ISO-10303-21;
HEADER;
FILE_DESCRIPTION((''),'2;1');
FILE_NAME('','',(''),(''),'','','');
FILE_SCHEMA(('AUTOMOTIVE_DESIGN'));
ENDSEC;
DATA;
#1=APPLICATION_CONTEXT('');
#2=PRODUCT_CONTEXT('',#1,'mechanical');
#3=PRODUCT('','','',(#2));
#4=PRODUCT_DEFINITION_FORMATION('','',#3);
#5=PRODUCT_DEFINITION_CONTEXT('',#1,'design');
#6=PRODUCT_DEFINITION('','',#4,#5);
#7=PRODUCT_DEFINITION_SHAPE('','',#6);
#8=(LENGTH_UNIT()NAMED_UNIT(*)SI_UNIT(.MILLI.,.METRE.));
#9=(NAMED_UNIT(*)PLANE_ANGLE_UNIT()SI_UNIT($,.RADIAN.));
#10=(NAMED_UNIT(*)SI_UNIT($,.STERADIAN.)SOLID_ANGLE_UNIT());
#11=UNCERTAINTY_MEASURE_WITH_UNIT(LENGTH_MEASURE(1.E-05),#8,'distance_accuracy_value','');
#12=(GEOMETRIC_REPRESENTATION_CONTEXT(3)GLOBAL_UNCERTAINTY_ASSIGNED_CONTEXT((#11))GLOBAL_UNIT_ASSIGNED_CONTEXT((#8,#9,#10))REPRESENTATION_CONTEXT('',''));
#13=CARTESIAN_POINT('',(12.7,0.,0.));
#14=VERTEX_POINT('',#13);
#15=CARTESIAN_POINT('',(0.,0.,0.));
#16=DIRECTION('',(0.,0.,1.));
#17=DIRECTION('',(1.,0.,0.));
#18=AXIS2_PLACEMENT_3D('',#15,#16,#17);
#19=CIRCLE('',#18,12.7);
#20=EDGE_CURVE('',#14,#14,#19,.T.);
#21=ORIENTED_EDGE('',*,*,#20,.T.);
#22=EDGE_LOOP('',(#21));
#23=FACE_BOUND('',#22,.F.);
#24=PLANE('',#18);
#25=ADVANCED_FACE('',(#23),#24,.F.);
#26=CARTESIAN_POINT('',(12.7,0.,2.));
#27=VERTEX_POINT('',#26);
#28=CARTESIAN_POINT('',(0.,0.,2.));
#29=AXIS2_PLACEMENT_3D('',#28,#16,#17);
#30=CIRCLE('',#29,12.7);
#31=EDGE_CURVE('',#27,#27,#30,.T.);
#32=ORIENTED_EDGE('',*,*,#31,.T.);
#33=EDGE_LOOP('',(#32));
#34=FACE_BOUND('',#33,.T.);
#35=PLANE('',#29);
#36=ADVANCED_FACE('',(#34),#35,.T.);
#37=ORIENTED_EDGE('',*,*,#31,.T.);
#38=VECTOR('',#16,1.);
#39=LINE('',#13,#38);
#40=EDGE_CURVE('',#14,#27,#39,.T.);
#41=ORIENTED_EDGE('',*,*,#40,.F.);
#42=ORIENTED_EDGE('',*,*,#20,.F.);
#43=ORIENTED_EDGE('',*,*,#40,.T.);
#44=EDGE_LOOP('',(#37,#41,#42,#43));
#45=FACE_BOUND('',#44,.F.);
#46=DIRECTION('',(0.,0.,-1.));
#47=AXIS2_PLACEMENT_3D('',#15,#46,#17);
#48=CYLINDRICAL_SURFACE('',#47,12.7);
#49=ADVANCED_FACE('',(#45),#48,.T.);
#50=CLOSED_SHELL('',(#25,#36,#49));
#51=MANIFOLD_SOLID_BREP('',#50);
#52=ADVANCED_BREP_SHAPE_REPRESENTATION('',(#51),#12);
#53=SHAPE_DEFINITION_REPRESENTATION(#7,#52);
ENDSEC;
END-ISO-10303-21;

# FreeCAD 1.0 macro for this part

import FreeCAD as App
import Part
import Sketcher
from FreeCAD import Vector
Q = App.Units.Quantity

doc = App.newDocument("Part")
body = doc.addObject("PartDesign::Body", "Body")

# Sketch on XY plane
sketch1 = body.newObject("Sketcher::SketchObject", "Sketch")
sketch1.AttachmentSupport = (doc.getObject("XY_Plane"), [""])
sketch1.MapMode = "FlatFace"
sketch1.addGeometry(Part.Circle(Vector(0, 0, 0), Vector(0, 0, 1), 13), False)
sketch1.addConstraint([
    Sketcher.Constraint("Coincident", 0, 3, -1, 1),
    Sketcher.Constraint("Diameter", 0, Q("25.4 mm")),
])
pad1 = body.newObject("PartDesign::Pad", "Pad")
pad1.Profile = sketch1
pad1.Length = 2

doc.recompute()
